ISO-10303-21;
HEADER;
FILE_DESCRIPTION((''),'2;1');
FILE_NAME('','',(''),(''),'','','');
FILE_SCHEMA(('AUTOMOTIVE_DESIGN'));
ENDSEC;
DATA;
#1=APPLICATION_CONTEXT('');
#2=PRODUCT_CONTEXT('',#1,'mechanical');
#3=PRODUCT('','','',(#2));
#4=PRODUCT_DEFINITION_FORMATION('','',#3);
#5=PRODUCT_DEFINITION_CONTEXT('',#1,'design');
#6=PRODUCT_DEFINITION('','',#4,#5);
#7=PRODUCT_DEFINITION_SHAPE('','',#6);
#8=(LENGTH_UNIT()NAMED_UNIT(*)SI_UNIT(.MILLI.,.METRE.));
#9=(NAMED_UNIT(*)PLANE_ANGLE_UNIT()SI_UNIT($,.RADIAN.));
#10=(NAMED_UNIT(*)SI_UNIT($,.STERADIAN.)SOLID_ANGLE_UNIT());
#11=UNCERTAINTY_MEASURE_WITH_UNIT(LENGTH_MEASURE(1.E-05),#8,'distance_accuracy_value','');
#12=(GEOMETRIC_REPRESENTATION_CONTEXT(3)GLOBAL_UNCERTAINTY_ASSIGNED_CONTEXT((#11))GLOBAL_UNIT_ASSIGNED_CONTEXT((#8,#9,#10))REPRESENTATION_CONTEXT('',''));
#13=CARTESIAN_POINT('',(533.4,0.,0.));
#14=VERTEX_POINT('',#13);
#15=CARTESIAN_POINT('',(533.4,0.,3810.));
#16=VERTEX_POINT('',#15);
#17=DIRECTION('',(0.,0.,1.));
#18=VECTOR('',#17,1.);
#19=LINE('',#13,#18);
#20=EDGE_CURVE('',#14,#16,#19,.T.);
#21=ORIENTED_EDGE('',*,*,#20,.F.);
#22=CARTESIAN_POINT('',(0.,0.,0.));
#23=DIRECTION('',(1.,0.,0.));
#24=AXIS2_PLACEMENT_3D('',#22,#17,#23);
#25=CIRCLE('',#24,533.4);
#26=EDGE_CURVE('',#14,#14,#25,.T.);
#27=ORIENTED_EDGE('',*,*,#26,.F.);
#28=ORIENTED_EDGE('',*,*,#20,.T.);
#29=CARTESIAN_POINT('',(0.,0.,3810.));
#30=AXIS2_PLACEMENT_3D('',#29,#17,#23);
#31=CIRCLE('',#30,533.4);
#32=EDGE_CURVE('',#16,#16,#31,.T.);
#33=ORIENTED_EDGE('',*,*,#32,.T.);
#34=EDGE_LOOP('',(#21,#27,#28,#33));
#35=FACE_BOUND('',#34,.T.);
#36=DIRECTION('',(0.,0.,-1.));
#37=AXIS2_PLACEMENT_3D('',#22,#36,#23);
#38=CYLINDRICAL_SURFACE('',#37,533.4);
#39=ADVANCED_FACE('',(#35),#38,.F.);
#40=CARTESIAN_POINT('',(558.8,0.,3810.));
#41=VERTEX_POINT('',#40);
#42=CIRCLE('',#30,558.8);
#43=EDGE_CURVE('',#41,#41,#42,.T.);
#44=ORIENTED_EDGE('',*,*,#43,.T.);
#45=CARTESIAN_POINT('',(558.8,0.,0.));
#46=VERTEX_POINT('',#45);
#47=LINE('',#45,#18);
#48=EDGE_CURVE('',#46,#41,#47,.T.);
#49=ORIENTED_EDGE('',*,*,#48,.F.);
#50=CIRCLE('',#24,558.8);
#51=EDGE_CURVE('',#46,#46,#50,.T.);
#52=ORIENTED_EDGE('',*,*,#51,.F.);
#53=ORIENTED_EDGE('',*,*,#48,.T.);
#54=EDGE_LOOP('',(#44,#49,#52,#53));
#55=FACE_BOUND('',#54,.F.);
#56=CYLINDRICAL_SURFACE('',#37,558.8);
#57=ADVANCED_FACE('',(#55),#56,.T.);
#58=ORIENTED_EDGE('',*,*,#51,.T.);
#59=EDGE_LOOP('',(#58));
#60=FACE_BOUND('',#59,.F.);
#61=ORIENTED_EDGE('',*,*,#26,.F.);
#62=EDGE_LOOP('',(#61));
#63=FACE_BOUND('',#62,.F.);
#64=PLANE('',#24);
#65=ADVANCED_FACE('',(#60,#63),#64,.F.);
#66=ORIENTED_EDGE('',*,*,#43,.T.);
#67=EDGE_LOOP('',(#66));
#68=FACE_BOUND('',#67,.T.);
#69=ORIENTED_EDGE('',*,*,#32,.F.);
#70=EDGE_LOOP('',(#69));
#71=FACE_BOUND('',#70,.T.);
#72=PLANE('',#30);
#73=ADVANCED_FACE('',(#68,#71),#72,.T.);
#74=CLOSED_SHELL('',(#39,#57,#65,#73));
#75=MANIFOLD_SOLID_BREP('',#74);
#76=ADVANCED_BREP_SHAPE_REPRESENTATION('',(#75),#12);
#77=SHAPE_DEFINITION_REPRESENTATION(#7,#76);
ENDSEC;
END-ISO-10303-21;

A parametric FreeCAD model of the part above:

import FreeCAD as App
import Part
import Sketcher
from FreeCAD import Vector
Q = App.Units.Quantity

doc = App.newDocument("Part")
params = doc.addObject("Spreadsheet::Sheet", "Params")
for row, (alias, value) in enumerate([
    ("sketch1_diameter", "44 in"),
    ("sketch1_diameter2", "42 in"),
    ("pad1_length", "150 in"),
], start=1):
    params.set(f"A{row}", alias)
    params.set(f"B{row}", "=" + value)
    params.setAlias(f"B{row}", alias)

body = doc.addObject("PartDesign::Body", "Body")

# Sketch on XY plane
sketch1 = body.newObject("Sketcher::SketchObject", "Sketch")
sketch1.AttachmentSupport = (doc.getObject("XY_Plane"), [""])
sketch1.MapMode = "FlatFace"
sketch1.addGeometry([
    Part.Circle(Vector(0, 0, 0), Vector(0, 0, 1), 559),
    Part.Circle(Vector(0, 0, 0), Vector(0, 0, 1), 533),
], False)
sketch1.addConstraint([
    Sketcher.Constraint("Coincident", 0, 3, -1, 1),
    Sketcher.Constraint("Coincident", 1, 3, -1, 1),
    Sketcher.Constraint("Diameter", 0, Q("44 in")),
    Sketcher.Constraint("Diameter", 1, Q("42 in")),
])
sketch1.setExpression("Constraints[2]", "Params.sketch1_diameter")
sketch1.setExpression("Constraints[3]", "Params.sketch1_diameter2")
pad1 = body.newObject("PartDesign::Pad", "Pad")
pad1.Profile = sketch1
pad1.setExpression("Length", "Params.pad1_length")

doc.recompute()
